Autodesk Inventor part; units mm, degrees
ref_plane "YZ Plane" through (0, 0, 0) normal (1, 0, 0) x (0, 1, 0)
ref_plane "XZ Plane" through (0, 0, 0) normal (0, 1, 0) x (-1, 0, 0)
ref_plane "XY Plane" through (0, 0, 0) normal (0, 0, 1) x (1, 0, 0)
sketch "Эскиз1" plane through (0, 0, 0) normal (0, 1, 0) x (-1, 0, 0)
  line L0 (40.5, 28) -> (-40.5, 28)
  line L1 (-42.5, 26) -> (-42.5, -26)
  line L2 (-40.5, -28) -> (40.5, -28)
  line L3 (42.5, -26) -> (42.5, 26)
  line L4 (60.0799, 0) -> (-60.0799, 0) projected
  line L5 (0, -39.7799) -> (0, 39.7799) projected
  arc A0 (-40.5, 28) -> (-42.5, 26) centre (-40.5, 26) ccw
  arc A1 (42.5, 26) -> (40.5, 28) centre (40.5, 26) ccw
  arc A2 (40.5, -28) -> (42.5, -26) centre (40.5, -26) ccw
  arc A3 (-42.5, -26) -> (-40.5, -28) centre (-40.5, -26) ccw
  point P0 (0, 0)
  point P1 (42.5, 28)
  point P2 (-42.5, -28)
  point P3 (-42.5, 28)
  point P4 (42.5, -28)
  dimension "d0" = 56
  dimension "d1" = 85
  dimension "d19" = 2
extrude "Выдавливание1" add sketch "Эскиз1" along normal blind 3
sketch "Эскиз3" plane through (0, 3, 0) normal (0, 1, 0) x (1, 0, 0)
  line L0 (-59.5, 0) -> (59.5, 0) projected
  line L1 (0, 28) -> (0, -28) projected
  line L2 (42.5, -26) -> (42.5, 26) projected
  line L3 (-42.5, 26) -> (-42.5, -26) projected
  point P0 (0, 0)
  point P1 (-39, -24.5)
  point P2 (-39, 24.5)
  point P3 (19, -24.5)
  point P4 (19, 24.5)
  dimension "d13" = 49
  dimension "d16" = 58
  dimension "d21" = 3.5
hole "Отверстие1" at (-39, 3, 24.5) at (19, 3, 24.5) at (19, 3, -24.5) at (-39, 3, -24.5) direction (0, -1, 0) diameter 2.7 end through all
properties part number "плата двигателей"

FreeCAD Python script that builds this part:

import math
import FreeCAD as App
import Part
import Sketcher
Q = App.Units.Quantity

doc = App.newDocument("Part")
body = doc.addObject("PartDesign::Body", "Body")

# Sketch on XZ plane
sketch1 = body.newObject("Sketcher::SketchObject", "Sketch")
sketch1.AttachmentSupport = (doc.getObject("XZ_Plane"), [""])
sketch1.MapMode = "FlatFace"
sketch1.addGeometry(Part.ArcOfCircle(Part.Circle(App.Vector(-40.5, 26, 0), App.Vector(0, 0, 1), 2), math.radians(90), math.radians(180)), False)
sketch1.addGeometry(Part.LineSegment(App.Vector(-40.5, 28, 0), App.Vector(40.5, 28, 0)), False)
sketch1.addGeometry(Part.ArcOfCircle(Part.Circle(App.Vector(40.5, 26, 0), App.Vector(0, 0, 1), 2), math.radians(0), math.radians(90)), False)
sketch1.addGeometry(Part.LineSegment(App.Vector(42.5, 26, 0), App.Vector(42.5, -26, 0)), False)
sketch1.addGeometry(Part.ArcOfCircle(Part.Circle(App.Vector(40.5, -26, 0), App.Vector(0, 0, 1), 2), math.radians(-90), math.radians(0)), False)
sketch1.addGeometry(Part.LineSegment(App.Vector(40.5, -28, 0), App.Vector(-40.5, -28, 0)), False)
sketch1.addGeometry(Part.ArcOfCircle(Part.Circle(App.Vector(-40.5, -26, 0), App.Vector(0, 0, 1), 2), math.radians(180), math.radians(270)), False)
sketch1.addGeometry(Part.LineSegment(App.Vector(-42.5, -26, 0), App.Vector(-42.5, 26, 0)), False)
sketch1.addConstraint(Sketcher.Constraint("Tangent", 0, 1, 1, 1))
sketch1.addConstraint(Sketcher.Constraint("Tangent", 1, 2, 2, 2))
sketch1.addConstraint(Sketcher.Constraint("Tangent", 2, 1, 3, 1))
sketch1.addConstraint(Sketcher.Constraint("Tangent", 3, 2, 4, 2))
sketch1.addConstraint(Sketcher.Constraint("Tangent", 4, 1, 5, 1))
sketch1.addConstraint(Sketcher.Constraint("Tangent", 5, 2, 6, 2))
sketch1.addConstraint(Sketcher.Constraint("Tangent", 6, 1, 7, 1))
sketch1.addConstraint(Sketcher.Constraint("Tangent", 7, 2, 0, 2))
sketch1.addConstraint(Sketcher.Constraint("Horizontal", 1))
sketch1.addConstraint(Sketcher.Constraint("Vertical", 3))
sketch1.addConstraint(Sketcher.Constraint("Horizontal", 5))
sketch1.addConstraint(Sketcher.Constraint("Vertical", 7))
sketch1.addConstraint(Sketcher.Constraint("Equal", 0, 2))
sketch1.addConstraint(Sketcher.Constraint("Equal", 2, 4))
sketch1.addConstraint(Sketcher.Constraint("Equal", 4, 6))
sketch1.addConstraint(Sketcher.Constraint("Symmetric", 0, 3, 4, 3, -1, 1))
sketch1.addConstraint(Sketcher.Constraint("Radius", 0, Q("2 mm")))
sketch1.addConstraint(Sketcher.Constraint("DistanceY", 4, 1, 1, 2, Q("56 mm")))
sketch1.addConstraint(Sketcher.Constraint("DistanceX", 1, 1, 1, 2, Q("81 mm")))
pad1 = body.newObject("PartDesign::Pad", "Pad")
pad1.Profile = sketch1
pad1.Length = 3
pad1.Reversed = True

# Sketch on XZ plane
sketch2 = body.newObject("Sketcher::SketchObject", "Sketch001")
sketch2.AttachmentSupport = (doc.getObject("XZ_Plane"), [""])
sketch2.MapMode = "FlatFace"
sketch2.AttachmentOffset = App.Placement(App.Vector(0, 0, -3), App.Rotation())
sketch2.addGeometry(Part.Circle(App.Vector(-39, 24.5, 0), App.Vector(0, 0, 1), 1.4), False)
sketch2.addGeometry(Part.Circle(App.Vector(19, 24.5, 0), App.Vector(0, 0, 1), 1.4), False)
sketch2.addGeometry(Part.Circle(App.Vector(19, -24.5, 0), App.Vector(0, 0, 1), 1.4), False)
sketch2.addGeometry(Part.Circle(App.Vector(-39, -24.5, 0), App.Vector(0, 0, 1), 1.4), False)
sketch2.addConstraint(Sketcher.Constraint("Equal", 0, 1))
sketch2.addConstraint(Sketcher.Constraint("Equal", 1, 2))
sketch2.addConstraint(Sketcher.Constraint("Equal", 2, 3))
sketch2.addConstraint(Sketcher.Constraint("Symmetric", 1, 3, 2, 3, -1))
sketch2.addConstraint(Sketcher.Constraint("Symmetric", 0, 3, 3, 3, -1))
sketch2.addConstraint(Sketcher.Constraint("Horizontal", 0, 3, 1, 3))
sketch2.addConstraint(Sketcher.Constraint("Diameter", 0, Q("2.7 mm")))
sketch2.addConstraint(Sketcher.Constraint("DistanceX", 0, 3, -1, 1, Q("39 mm")))
sketch2.addConstraint(Sketcher.Constraint("DistanceX", -1, 1, 1, 3, Q("19 mm")))
sketch2.addConstraint(Sketcher.Constraint("DistanceY", 2, 3, 1, 3, Q("49 mm")))
doc.recompute()
hole = body.newObject("PartDesign::Hole", "Hole")
hole.Profile = sketch2
hole.ThreadType = "None"
hole.Diameter = 2.7
hole.DepthType = "ThroughAll"
hole.Reversed = True

doc.recompute()
